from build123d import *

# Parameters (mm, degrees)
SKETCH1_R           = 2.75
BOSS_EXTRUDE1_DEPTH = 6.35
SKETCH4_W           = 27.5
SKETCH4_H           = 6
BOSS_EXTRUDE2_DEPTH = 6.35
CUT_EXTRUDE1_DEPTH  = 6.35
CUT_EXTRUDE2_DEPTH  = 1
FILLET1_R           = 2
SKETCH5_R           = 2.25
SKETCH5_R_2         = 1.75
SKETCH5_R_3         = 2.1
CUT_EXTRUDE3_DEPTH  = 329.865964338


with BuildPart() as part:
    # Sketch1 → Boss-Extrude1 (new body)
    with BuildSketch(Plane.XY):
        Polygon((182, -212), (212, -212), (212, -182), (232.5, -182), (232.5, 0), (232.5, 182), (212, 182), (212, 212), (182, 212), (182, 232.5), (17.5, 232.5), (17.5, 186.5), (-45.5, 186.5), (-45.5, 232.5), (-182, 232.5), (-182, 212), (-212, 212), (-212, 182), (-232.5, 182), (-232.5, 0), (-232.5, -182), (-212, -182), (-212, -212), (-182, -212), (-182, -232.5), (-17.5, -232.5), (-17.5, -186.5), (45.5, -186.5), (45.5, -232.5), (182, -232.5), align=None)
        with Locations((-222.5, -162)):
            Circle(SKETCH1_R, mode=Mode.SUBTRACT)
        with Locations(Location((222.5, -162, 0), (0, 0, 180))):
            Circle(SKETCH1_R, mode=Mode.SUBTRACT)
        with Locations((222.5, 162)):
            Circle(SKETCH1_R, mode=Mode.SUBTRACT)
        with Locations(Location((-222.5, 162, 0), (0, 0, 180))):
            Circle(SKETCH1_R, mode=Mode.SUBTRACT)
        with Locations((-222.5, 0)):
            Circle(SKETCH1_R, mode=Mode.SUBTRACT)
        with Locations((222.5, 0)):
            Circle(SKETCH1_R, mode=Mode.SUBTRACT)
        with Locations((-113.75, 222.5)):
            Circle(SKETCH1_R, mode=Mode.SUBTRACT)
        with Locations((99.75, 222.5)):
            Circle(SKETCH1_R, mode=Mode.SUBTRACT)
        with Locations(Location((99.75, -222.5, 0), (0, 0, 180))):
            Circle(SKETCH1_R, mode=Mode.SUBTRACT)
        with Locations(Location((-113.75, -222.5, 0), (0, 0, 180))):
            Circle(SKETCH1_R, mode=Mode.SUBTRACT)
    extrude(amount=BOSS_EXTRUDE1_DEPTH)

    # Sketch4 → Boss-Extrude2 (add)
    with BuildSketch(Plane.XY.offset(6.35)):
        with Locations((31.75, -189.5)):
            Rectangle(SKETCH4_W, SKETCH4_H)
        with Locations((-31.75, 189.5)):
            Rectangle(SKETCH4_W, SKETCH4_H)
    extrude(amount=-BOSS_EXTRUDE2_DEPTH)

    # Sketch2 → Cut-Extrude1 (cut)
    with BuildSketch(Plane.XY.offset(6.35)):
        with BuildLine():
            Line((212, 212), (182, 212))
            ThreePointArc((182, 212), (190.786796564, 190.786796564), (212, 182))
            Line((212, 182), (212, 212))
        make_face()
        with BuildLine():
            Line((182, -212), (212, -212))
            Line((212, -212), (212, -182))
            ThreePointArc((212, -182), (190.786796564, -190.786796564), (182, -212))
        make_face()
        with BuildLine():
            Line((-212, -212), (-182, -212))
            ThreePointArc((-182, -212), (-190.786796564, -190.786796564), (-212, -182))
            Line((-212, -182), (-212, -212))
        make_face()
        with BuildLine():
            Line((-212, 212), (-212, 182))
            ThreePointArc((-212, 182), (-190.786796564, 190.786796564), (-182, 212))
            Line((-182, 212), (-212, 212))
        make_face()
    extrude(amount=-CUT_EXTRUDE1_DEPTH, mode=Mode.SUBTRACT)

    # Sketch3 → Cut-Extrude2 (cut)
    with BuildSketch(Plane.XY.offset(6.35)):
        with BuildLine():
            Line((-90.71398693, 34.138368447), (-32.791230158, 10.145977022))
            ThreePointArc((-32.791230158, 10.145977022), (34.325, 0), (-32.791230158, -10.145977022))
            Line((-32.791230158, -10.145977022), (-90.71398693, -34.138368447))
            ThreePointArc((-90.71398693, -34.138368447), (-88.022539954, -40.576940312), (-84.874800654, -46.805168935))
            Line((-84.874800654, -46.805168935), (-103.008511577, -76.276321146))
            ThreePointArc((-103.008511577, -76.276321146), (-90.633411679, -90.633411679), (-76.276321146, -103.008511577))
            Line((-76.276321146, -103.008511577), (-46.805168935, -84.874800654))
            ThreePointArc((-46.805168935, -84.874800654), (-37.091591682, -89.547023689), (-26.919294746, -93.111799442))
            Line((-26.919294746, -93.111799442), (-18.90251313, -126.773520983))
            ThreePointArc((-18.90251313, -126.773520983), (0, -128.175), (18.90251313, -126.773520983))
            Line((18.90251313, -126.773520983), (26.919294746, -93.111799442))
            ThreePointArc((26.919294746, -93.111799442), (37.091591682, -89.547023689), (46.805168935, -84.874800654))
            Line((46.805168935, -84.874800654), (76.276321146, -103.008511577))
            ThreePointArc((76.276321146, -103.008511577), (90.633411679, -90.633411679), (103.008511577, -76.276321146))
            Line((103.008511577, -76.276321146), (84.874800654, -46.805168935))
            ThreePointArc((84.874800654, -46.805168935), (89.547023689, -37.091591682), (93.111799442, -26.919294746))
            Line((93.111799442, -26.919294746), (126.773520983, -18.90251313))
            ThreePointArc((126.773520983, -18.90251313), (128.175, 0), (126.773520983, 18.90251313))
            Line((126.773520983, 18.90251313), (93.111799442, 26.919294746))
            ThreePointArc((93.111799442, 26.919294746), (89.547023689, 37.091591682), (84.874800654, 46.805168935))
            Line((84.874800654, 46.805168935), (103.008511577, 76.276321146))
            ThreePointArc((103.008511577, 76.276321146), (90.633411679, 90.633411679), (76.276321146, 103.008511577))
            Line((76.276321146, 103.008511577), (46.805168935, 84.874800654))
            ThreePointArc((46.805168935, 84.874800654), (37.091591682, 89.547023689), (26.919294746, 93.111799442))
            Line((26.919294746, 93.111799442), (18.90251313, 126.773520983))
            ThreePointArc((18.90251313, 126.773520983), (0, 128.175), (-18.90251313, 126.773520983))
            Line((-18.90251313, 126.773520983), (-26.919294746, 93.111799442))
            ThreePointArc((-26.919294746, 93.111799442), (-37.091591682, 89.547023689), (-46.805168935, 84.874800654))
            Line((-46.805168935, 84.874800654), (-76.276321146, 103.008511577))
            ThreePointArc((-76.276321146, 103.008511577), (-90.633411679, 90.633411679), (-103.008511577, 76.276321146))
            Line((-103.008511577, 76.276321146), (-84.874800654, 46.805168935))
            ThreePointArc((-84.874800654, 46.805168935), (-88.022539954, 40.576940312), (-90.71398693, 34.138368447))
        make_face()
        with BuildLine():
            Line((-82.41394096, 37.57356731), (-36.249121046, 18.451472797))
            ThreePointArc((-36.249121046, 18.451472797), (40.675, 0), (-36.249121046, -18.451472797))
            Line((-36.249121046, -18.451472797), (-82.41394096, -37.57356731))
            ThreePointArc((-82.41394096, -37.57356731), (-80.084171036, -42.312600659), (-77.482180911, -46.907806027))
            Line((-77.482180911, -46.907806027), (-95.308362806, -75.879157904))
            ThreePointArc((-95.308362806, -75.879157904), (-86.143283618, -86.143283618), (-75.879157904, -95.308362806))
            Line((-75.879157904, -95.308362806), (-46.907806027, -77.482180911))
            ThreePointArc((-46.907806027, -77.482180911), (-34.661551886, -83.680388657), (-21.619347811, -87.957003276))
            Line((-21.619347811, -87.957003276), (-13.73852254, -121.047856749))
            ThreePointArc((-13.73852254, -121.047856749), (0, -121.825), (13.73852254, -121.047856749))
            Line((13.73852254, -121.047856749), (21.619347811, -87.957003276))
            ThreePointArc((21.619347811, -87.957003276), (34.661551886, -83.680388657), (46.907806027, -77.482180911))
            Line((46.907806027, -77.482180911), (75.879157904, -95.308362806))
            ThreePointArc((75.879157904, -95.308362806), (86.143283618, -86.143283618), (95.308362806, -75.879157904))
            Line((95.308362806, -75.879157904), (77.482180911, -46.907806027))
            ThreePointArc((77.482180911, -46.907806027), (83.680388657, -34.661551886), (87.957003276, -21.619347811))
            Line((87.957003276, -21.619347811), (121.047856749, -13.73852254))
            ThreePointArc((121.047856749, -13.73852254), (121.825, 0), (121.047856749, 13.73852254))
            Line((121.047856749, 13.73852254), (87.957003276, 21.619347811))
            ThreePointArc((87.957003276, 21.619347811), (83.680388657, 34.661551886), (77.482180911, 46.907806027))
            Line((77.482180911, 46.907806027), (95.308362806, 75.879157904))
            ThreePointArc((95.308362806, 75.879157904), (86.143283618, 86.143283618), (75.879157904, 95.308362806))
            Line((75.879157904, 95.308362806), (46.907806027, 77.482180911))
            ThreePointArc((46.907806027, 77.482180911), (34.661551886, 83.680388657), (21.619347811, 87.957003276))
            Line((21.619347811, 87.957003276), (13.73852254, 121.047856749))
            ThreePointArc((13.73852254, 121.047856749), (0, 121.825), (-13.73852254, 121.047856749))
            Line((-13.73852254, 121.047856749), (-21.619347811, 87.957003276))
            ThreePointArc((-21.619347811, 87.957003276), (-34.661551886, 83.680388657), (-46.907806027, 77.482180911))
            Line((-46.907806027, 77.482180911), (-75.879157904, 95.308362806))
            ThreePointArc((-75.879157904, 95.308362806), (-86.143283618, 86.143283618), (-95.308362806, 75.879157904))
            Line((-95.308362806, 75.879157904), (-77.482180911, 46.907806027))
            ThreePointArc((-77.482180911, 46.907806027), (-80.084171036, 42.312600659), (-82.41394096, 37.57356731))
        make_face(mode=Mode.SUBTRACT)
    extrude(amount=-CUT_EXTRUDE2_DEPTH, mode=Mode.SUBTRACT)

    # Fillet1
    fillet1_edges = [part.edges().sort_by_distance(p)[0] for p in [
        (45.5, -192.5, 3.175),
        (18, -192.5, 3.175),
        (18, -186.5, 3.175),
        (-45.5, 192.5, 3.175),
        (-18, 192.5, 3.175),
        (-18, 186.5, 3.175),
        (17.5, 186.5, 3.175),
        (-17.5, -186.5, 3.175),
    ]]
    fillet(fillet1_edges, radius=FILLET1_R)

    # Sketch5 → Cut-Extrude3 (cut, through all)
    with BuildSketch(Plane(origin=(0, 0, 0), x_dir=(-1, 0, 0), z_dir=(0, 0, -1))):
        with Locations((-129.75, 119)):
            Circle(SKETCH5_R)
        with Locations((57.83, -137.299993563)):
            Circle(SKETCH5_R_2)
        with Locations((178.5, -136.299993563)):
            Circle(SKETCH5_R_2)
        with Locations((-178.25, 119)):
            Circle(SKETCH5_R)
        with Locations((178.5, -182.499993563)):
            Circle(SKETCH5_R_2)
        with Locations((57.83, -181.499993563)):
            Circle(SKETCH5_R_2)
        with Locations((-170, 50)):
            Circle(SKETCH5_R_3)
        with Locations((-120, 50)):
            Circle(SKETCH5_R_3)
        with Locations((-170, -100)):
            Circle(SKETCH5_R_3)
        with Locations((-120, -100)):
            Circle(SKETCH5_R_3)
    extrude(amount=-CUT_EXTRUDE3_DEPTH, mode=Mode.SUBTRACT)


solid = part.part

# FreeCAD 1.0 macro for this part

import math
import FreeCAD as App
import Part
import Sketcher
Q = App.Units.Quantity


def edges_at(feature, points):
    """Names of the edges that pass closest to the given points."""
    edges = feature.Shape.Edges
    near = lambda p: min(range(len(edges)), key=lambda i: edges[i].distToShape(Part.Vertex(*p))[0])
    return sorted({f"Edge{near(p) + 1}" for p in points})


def add_polygon(sketch, points):
    """Adds a closed chain of lines whose ends are joined by coincident constraints."""
    first, n = sketch.GeometryCount, len(points)
    for a, b in zip(points, points[1:] + points[:1]):
        sketch.addGeometry(Part.LineSegment(App.Vector(*a, 0), App.Vector(*b, 0)), False)
    for i in range(n):
        sketch.addConstraint(Sketcher.Constraint("Coincident", first + i, 2, first + (i + 1) % n, 1))

doc = App.newDocument("Part")
body = doc.addObject("PartDesign::Body", "Body")

# Sketch on XY plane
sketch1 = body.newObject("Sketcher::SketchObject", "Sketch")
sketch1.AttachmentSupport = (doc.getObject("XY_Plane"), [""])
sketch1.MapMode = "FlatFace"
add_polygon(sketch1, [(182, -212), (212, -212), (212, -182), (232.5, -182), (232.5, 182), (212, 182), (212, 212), (182, 212), (182, 232.5), (17.5, 232.5), (17.5, 186.5), (-45.5, 186.5), (-45.5, 232.5), (-182, 232.5), (-182, 212), (-212, 212), (-212, 182), (-232.5, 182), (-232.5, -182), (-212, -182), (-212, -212), (-182, -212), (-182, -232.5), (-17.5, -232.5), (-17.5, -186.5), (45.5, -186.5), (45.5, -232.5), (182, -232.5)])  # lines 0-27
sketch1.addGeometry(Part.Circle(App.Vector(-113.8, -222.5, 0), App.Vector(0, 0, 1), 2.8), False)  # 28
sketch1.addGeometry(Part.Circle(App.Vector(-222.5, -162, 0), App.Vector(0, 0, 1), 2.8), False)  # 29
sketch1.addGeometry(Part.Circle(App.Vector(99.8, -222.5, 0), App.Vector(0, 0, 1), 2.8), False)  # 30
sketch1.addGeometry(Part.Circle(App.Vector(222.5, -162, 0), App.Vector(0, 0, 1), 2.8), False)  # 31
sketch1.addGeometry(Part.Circle(App.Vector(-222.5, 0, 0), App.Vector(0, 0, 1), 2.8), False)  # 32
sketch1.addGeometry(Part.Circle(App.Vector(-222.5, 162, 0), App.Vector(0, 0, 1), 2.8), False)  # 33
sketch1.addGeometry(Part.Circle(App.Vector(-113.8, 222.5, 0), App.Vector(0, 0, 1), 2.8), False)  # 34
sketch1.addGeometry(Part.Circle(App.Vector(222.5, 0, 0), App.Vector(0, 0, 1), 2.8), False)  # 35
sketch1.addGeometry(Part.Circle(App.Vector(99.8, 222.5, 0), App.Vector(0, 0, 1), 2.8), False)  # 36
sketch1.addGeometry(Part.Circle(App.Vector(222.5, 162, 0), App.Vector(0, 0, 1), 2.8), False)  # 37
sketch1.addConstraint([
    Sketcher.Constraint("Horizontal", 0),
    Sketcher.Constraint("Vertical", 1),
    Sketcher.Constraint("Horizontal", 2),
    Sketcher.Constraint("Vertical", 3),
    Sketcher.Constraint("Horizontal", 4),
    Sketcher.Constraint("Vertical", 5),
    Sketcher.Constraint("Horizontal", 6),
    Sketcher.Constraint("Vertical", 7),
    Sketcher.Constraint("Horizontal", 8),
    Sketcher.Constraint("Vertical", 9),
    Sketcher.Constraint("Horizontal", 10),
    Sketcher.Constraint("Vertical", 11),
    Sketcher.Constraint("Horizontal", 12),
    Sketcher.Constraint("Vertical", 13),
    Sketcher.Constraint("Horizontal", 14),
    Sketcher.Constraint("Vertical", 15),
    Sketcher.Constraint("Horizontal", 16),
    Sketcher.Constraint("Vertical", 17),
    Sketcher.Constraint("Horizontal", 18),
    Sketcher.Constraint("Vertical", 19),
    Sketcher.Constraint("Horizontal", 20),
    Sketcher.Constraint("Vertical", 21),
    Sketcher.Constraint("Horizontal", 22),
    Sketcher.Constraint("Vertical", 23),
    Sketcher.Constraint("Horizontal", 24),
    Sketcher.Constraint("Vertical", 25),
    Sketcher.Constraint("Horizontal", 26),
    Sketcher.Constraint("Vertical", 27),
    Sketcher.Constraint("Equal", 28, 29),
    Sketcher.Constraint("Equal", 29, 30),
    Sketcher.Constraint("Equal", 30, 31),
    Sketcher.Constraint("Equal", 31, 32),
    Sketcher.Constraint("Equal", 32, 33),
    Sketcher.Constraint("Equal", 33, 34),
    Sketcher.Constraint("Equal", 34, 35),
    Sketcher.Constraint("Equal", 35, 36),
    Sketcher.Constraint("Equal", 36, 37),
    Sketcher.Constraint("Symmetric", 31, 3, 33, 3, -1, 1),
    Sketcher.Constraint("Symmetric", 32, 3, 35, 3, -1, 1),
    Sketcher.Constraint("Symmetric", 29, 3, 37, 3, -1, 1),
    Sketcher.Constraint("Symmetric", 0, 2, 14, 2, -1, 1),
    Sketcher.Constraint("Symmetric", 2, 2, 16, 2, -1, 1),
    Sketcher.Constraint("Symmetric", 4, 2, 18, 2, -1, 1),
    Sketcher.Constraint("Symmetric", 6, 2, 20, 2, -1, 1),
    Sketcher.Constraint("Symmetric", 8, 2, 22, 2, -1, 1),
    Sketcher.Constraint("Symmetric", 10, 2, 24, 2, -1, 1),
    Sketcher.Constraint("Symmetric", 12, 2, 26, 2, -1, 1),
    Sketcher.Constraint("Symmetric", 29, 3, 31, 3, -2),
    Sketcher.Constraint("Symmetric", 7, 2, 12, 2, -2),
    Sketcher.Constraint("Symmetric", 5, 2, 14, 2, -2),
    Sketcher.Constraint("Symmetric", 28, 3, 34, 3, -1),
    Sketcher.Constraint("Symmetric", 30, 3, 36, 3, -1),
    Sketcher.Constraint("PointOnObject", 32, 3, -1),
    Sketcher.Constraint("Horizontal", 28, 3, 30, 3),
    Sketcher.Constraint("Horizontal", 4, 2, 15, 2),
    Sketcher.Constraint("Vertical", 29, 3, 32, 3),
    Sketcher.Constraint("Equal", 20, 1),
    Sketcher.Constraint("Equal", 18, 7),
    Sketcher.Constraint("Diameter", 28, Q("5.5 mm")),
    Sketcher.Constraint("DistanceX", 0, 1, 0, 2, Q("30 mm")),
    Sketcher.Constraint("DistanceX", 10, 2, 10, 1, Q("63 mm")),
    Sketcher.Constraint("DistanceY", 3, 1, 3, 2, Q("364 mm")),
    Sketcher.Constraint("DistanceY", 9, 2, 9, 1, Q("46 mm")),
    Sketcher.Constraint("DistanceX", 2, 1, 2, 2, Q("20.5 mm")),
    Sketcher.Constraint("DistanceX", 8, 2, 8, 1, Q("164.5 mm")),
    Sketcher.Constraint("DistanceX", 12, 2, 12, 1, Q("136.5 mm")),
    Sketcher.Constraint("DistanceY", 29, 3, -1, 1, Q("162 mm")),
    Sketcher.Constraint("DistanceX", 29, 3, 31, 3, Q("445 mm")),
    Sketcher.Constraint("DistanceY", 28, 3, 34, 3, Q("445 mm")),
    Sketcher.Constraint("DistanceX", 28, 3, 30, 3, Q("213.5 mm")),
    Sketcher.Constraint("DistanceX", 28, 3, -1, 1, Q("113.75 mm")),
])
pad1 = body.newObject("PartDesign::Pad", "Pad")
pad1.Profile = sketch1
pad1.Length = 6.35

# Sketch on XY plane
sketch2 = body.newObject("Sketcher::SketchObject", "Sketch001")
sketch2.AttachmentSupport = (doc.getObject("XY_Plane"), [""])
sketch2.MapMode = "FlatFace"
sketch2.AttachmentOffset = App.Placement(App.Vector(0, 0, 6.35), App.Rotation())
add_polygon(sketch2, [(18, -186), (18, -192), (46, -192), (46, -186)])  # lines 0-3
add_polygon(sketch2, [(-46, 192), (-46, 186), (-18, 186), (-18, 192)])  # lines 4-7
sketch2.addConstraint([
    Sketcher.Constraint("Vertical", 0),
    Sketcher.Constraint("Horizontal", 1),
    Sketcher.Constraint("Vertical", 2),
    Sketcher.Constraint("Horizontal", 3),
    Sketcher.Constraint("Vertical", 4),
    Sketcher.Constraint("Horizontal", 5),
    Sketcher.Constraint("Vertical", 6),
    Sketcher.Constraint("Horizontal", 7),
    Sketcher.Constraint("Symmetric", 2, 2, 4, 2, -1, 1),
    Sketcher.Constraint("Symmetric", 0, 2, 6, 2, -1, 1),
    Sketcher.Constraint("DistanceY", 0, 2, 0, 1, Q("6 mm")),
    Sketcher.Constraint("DistanceX", 1, 1, 1, 2, Q("27.5 mm")),
    Sketcher.Constraint("DistanceX", -1, 1, 0, 2, Q("18 mm")),
    Sketcher.Constraint("DistanceY", 3, 2, 4, 2, Q("373 mm")),
])
pad2 = body.newObject("PartDesign::Pad", "Pad001")
pad2.Profile = sketch2
pad2.Length = 6.35
pad2.Reversed = True

# Sketch on XY plane
sketch3 = body.newObject("Sketcher::SketchObject", "Sketch002")
sketch3.AttachmentSupport = (doc.getObject("XY_Plane"), [""])
sketch3.MapMode = "FlatFace"
sketch3.AttachmentOffset = App.Placement(App.Vector(0, 0, 6.35), App.Rotation())
sketch3.addGeometry([
    Part.LineSegment(App.Vector(212, 212, 0), App.Vector(182, 212, 0)),  # 0
    Part.ArcOfCircle(Part.Circle(App.Vector(212, 212, 0), App.Vector(0, 0, 1), 30), math.radians(180), math.radians(270)),  # 1
    Part.LineSegment(App.Vector(212, 182, 0), App.Vector(212, 212, 0)),  # 2
    Part.LineSegment(App.Vector(182, -212, 0), App.Vector(212, -212, 0)),  # 3
    Part.LineSegment(App.Vector(212, -212, 0), App.Vector(212, -182, 0)),  # 4
    Part.ArcOfCircle(Part.Circle(App.Vector(212, -212, 0), App.Vector(0, 0, 1), 30), math.radians(90), math.radians(180)),  # 5
    Part.LineSegment(App.Vector(-212, -212, 0), App.Vector(-182, -212, 0)),  # 6
    Part.ArcOfCircle(Part.Circle(App.Vector(-212, -212, 0), App.Vector(0, 0, 1), 30), math.radians(0), math.radians(90)),  # 7
    Part.LineSegment(App.Vector(-212, -182, 0), App.Vector(-212, -212, 0)),  # 8
    Part.LineSegment(App.Vector(-212, 212, 0), App.Vector(-212, 182, 0)),  # 9
    Part.ArcOfCircle(Part.Circle(App.Vector(-212, 212, 0), App.Vector(0, 0, 1), 30), math.radians(-90), math.radians(0)),  # 10
    Part.LineSegment(App.Vector(-182, 212, 0), App.Vector(-212, 212, 0)),  # 11
], False)
sketch3.addConstraint([
    Sketcher.Constraint("Coincident", 0, 2, 1, 1),
    Sketcher.Constraint("Coincident", 1, 2, 2, 1),
    Sketcher.Constraint("Coincident", 2, 2, 0, 1),
    Sketcher.Constraint("Coincident", 3, 2, 4, 1),
    Sketcher.Constraint("Coincident", 4, 2, 5, 1),
    Sketcher.Constraint("Coincident", 5, 2, 3, 1),
    Sketcher.Constraint("Coincident", 6, 2, 7, 1),
    Sketcher.Constraint("Coincident", 7, 2, 8, 1),
    Sketcher.Constraint("Coincident", 8, 2, 6, 1),
    Sketcher.Constraint("Coincident", 9, 2, 10, 1),
    Sketcher.Constraint("Coincident", 10, 2, 11, 1),
    Sketcher.Constraint("Coincident", 11, 2, 9, 1),
    Sketcher.Constraint("Horizontal", 0),
    Sketcher.Constraint("Vertical", 2),
    Sketcher.Constraint("Horizontal", 3),
    Sketcher.Constraint("Vertical", 4),
    Sketcher.Constraint("Horizontal", 6),
    Sketcher.Constraint("Vertical", 8),
    Sketcher.Constraint("Vertical", 9),
    Sketcher.Constraint("Horizontal", 11),
    Sketcher.Constraint("Coincident", 2, 2, 1, 3),
    Sketcher.Constraint("Coincident", 3, 2, 5, 3),
    Sketcher.Constraint("Coincident", 8, 2, 7, 3),
    Sketcher.Constraint("Coincident", 11, 2, 10, 3),
    Sketcher.Constraint("Equal", 1, 5),
    Sketcher.Constraint("Equal", 5, 7),
    Sketcher.Constraint("Equal", 7, 10),
    Sketcher.Constraint("Symmetric", 1, 3, 7, 3, -1, 1),
    Sketcher.Constraint("Symmetric", 5, 3, 10, 3, -1, 1),
    Sketcher.Constraint("Symmetric", 5, 3, 7, 3, -2),
    Sketcher.Constraint("Radius", 1, Q("30 mm")),
    Sketcher.Constraint("DistanceX", -1, 1, 1, 3, Q("212 mm")),
    Sketcher.Constraint("DistanceY", -1, 1, 1, 3, Q("212 mm")),
])
pocket1 = body.newObject("PartDesign::Pocket", "Pocket")
pocket1.Profile = sketch3
pocket1.Length = 6.35

# Sketch on XY plane
sketch4 = body.newObject("Sketcher::SketchObject", "Sketch003")
sketch4.AttachmentSupport = (doc.getObject("XY_Plane"), [""])
sketch4.MapMode = "FlatFace"
sketch4.AttachmentOffset = App.Placement(App.Vector(0, 0, 6.35), App.Rotation())
sketch4.addGeometry([
    Part.LineSegment(App.Vector(-91, 34, 0), App.Vector(-33, 10, 0)),  # 0
    Part.ArcOfCircle(Part.Circle(App.Vector(0, 0, 0), App.Vector(0, 0, 1), 34), math.radians(-163), math.radians(163)),  # 1
    Part.LineSegment(App.Vector(-33, -10, 0), App.Vector(-91, -34, 0)),  # 2
    Part.ArcOfCircle(Part.Circle(App.Vector(0, 0, 0), App.Vector(0, 0, 1), 97), math.radians(-159.38), math.radians(-151.12)),  # 3
    Part.LineSegment(App.Vector(-85, -47, 0), App.Vector(-103, -76, 0)),  # 4
    Part.ArcOfCircle(Part.Circle(App.Vector(0, 0, 0), App.Vector(0, 0, 1), 128), math.radians(-143.48), math.radians(-126.52)),  # 5
    Part.LineSegment(App.Vector(-76, -103, 0), App.Vector(-47, -85, 0)),  # 6
    Part.ArcOfCircle(Part.Circle(App.Vector(0, 0, 0), App.Vector(0, 0, 1), 97), math.radians(-118.88), math.radians(-106.12)),  # 7
    Part.LineSegment(App.Vector(-27, -93, 0), App.Vector(-19, -127, 0)),  # 8
    Part.ArcOfCircle(Part.Circle(App.Vector(0, 0, 0), App.Vector(0, 0, 1), 128), math.radians(-98.48), math.radians(-81.52)),  # 9
    Part.LineSegment(App.Vector(19, -127, 0), App.Vector(27, -93, 0)),  # 10
    Part.ArcOfCircle(Part.Circle(App.Vector(0, 0, 0), App.Vector(0, 0, 1), 97), math.radians(-73.88), math.radians(-61.12)),  # 11
    Part.LineSegment(App.Vector(47, -85, 0), App.Vector(76, -103, 0)),  # 12
    Part.ArcOfCircle(Part.Circle(App.Vector(0, 0, 0), App.Vector(0, 0, 1), 128), math.radians(-53.48), math.radians(-36.52)),  # 13
    Part.LineSegment(App.Vector(103, -76, 0), App.Vector(85, -47, 0)),  # 14
    Part.ArcOfCircle(Part.Circle(App.Vector(0, 0, 0), App.Vector(0, 0, 1), 97), math.radians(-28.88), math.radians(-16.12)),  # 15
    Part.LineSegment(App.Vector(93, -27, 0), App.Vector(127, -19, 0)),  # 16
    Part.ArcOfCircle(Part.Circle(App.Vector(0, 0, 0), App.Vector(0, 0, 1), 128), math.radians(-8.48), math.radians(8.48)),  # 17
    Part.LineSegment(App.Vector(127, 19, 0), App.Vector(93, 27, 0)),  # 18
    Part.ArcOfCircle(Part.Circle(App.Vector(0, 0, 0), App.Vector(0, 0, 1), 97), math.radians(16.12), math.radians(28.88)),  # 19
    Part.LineSegment(App.Vector(85, 47, 0), App.Vector(103, 76, 0)),  # 20
    Part.ArcOfCircle(Part.Circle(App.Vector(0, 0, 0), App.Vector(0, 0, 1), 128), math.radians(36.52), math.radians(53.48)),  # 21
    Part.LineSegment(App.Vector(76, 103, 0), App.Vector(47, 85, 0)),  # 22
    Part.ArcOfCircle(Part.Circle(App.Vector(0, 0, 0), App.Vector(0, 0, 1), 97), math.radians(61.12), math.radians(73.88)),  # 23
    Part.LineSegment(App.Vector(27, 93, 0), App.Vector(19, 127, 0)),  # 24
    Part.ArcOfCircle(Part.Circle(App.Vector(0, 0, 0), App.Vector(0, 0, 1), 128), math.radians(81.52), math.radians(98.48)),  # 25
    Part.LineSegment(App.Vector(-19, 127, 0), App.Vector(-27, 93, 0)),  # 26
    Part.ArcOfCircle(Part.Circle(App.Vector(0, 0, 0), App.Vector(0, 0, 1), 97), math.radians(106.12), math.radians(118.88)),  # 27
    Part.LineSegment(App.Vector(-47, 85, 0), App.Vector(-76, 103, 0)),  # 28
    Part.ArcOfCircle(Part.Circle(App.Vector(0, 0, 0), App.Vector(0, 0, 1), 128), math.radians(126.52), math.radians(143.48)),  # 29
    Part.LineSegment(App.Vector(-103, 76, 0), App.Vector(-85, 47, 0)),  # 30
    Part.ArcOfCircle(Part.Circle(App.Vector(0, 0, 0), App.Vector(0, 0, 1), 97), math.radians(151.12), math.radians(159.38)),  # 31
    Part.LineSegment(App.Vector(-36, 18, 0), App.Vector(-82, 38, 0)),  # 32
    Part.ArcOfCircle(Part.Circle(App.Vector(0, 0, 0), App.Vector(0, 0, 1), 91), math.radians(148.81), math.radians(155.49)),  # 33
    Part.LineSegment(App.Vector(-77, 47, 0), App.Vector(-95, 76, 0)),  # 34
    Part.ArcOfCircle(Part.Circle(App.Vector(0, 0, 0), App.Vector(0, 0, 1), 122), math.radians(128.52), math.radians(141.48)),  # 35
    Part.LineSegment(App.Vector(-76, 95, 0), App.Vector(-47, 77, 0)),  # 36
    Part.ArcOfCircle(Part.Circle(App.Vector(0, 0, 0), App.Vector(0, 0, 1), 91), math.radians(103.81), math.radians(121.19)),  # 37
    Part.LineSegment(App.Vector(-22, 88, 0), App.Vector(-14, 121, 0)),  # 38
    Part.ArcOfCircle(Part.Circle(App.Vector(0, 0, 0), App.Vector(0, 0, 1), 122), math.radians(83.52), math.radians(96.48)),  # 39
    Part.LineSegment(App.Vector(14, 121, 0), App.Vector(22, 88, 0)),  # 40
    Part.ArcOfCircle(Part.Circle(App.Vector(0, 0, 0), App.Vector(0, 0, 1), 91), math.radians(58.81), math.radians(76.19)),  # 41
    Part.LineSegment(App.Vector(47, 77, 0), App.Vector(76, 95, 0)),  # 42
    Part.ArcOfCircle(Part.Circle(App.Vector(0, 0, 0), App.Vector(0, 0, 1), 122), math.radians(38.52), math.radians(51.48)),  # 43
    Part.LineSegment(App.Vector(95, 76, 0), App.Vector(77, 47, 0)),  # 44
    Part.ArcOfCircle(Part.Circle(App.Vector(0, 0, 0), App.Vector(0, 0, 1), 91), math.radians(13.81), math.radians(31.19)),  # 45
    Part.LineSegment(App.Vector(88, 22, 0), App.Vector(121, 14, 0)),  # 46
    Part.ArcOfCircle(Part.Circle(App.Vector(0, 0, 0), App.Vector(0, 0, 1), 122), math.radians(-6.48), math.radians(6.48)),  # 47
    Part.LineSegment(App.Vector(121, -14, 0), App.Vector(88, -22, 0)),  # 48
    Part.ArcOfCircle(Part.Circle(App.Vector(0, 0, 0), App.Vector(0, 0, 1), 91), math.radians(-31.19), math.radians(-13.81)),  # 49
    Part.LineSegment(App.Vector(77, -47, 0), App.Vector(95, -76, 0)),  # 50
    Part.ArcOfCircle(Part.Circle(App.Vector(0, 0, 0), App.Vector(0, 0, 1), 122), math.radians(-51.48), math.radians(-38.52)),  # 51
    Part.LineSegment(App.Vector(76, -95, 0), App.Vector(47, -77, 0)),  # 52
    Part.ArcOfCircle(Part.Circle(App.Vector(0, 0, 0), App.Vector(0, 0, 1), 91), math.radians(-76.19), math.radians(-58.81)),  # 53
    Part.LineSegment(App.Vector(22, -88, 0), App.Vector(14, -121, 0)),  # 54
    Part.ArcOfCircle(Part.Circle(App.Vector(0, 0, 0), App.Vector(0, 0, 1), 122), math.radians(-96.48), math.radians(-83.52)),  # 55
    Part.LineSegment(App.Vector(-14, -121, 0), App.Vector(-22, -88, 0)),  # 56
    Part.ArcOfCircle(Part.Circle(App.Vector(0, 0, 0), App.Vector(0, 0, 1), 91), math.radians(-121.19), math.radians(-103.81)),  # 57
    Part.LineSegment(App.Vector(-47, -77, 0), App.Vector(-76, -95, 0)),  # 58
    Part.ArcOfCircle(Part.Circle(App.Vector(0, 0, 0), App.Vector(0, 0, 1), 122), math.radians(-141.48), math.radians(-128.52)),  # 59
    Part.LineSegment(App.Vector(-95, -76, 0), App.Vector(-77, -47, 0)),  # 60
    Part.ArcOfCircle(Part.Circle(App.Vector(0, 0, 0), App.Vector(0, 0, 1), 91), math.radians(-155.49), math.radians(-148.81)),  # 61
    Part.LineSegment(App.Vector(-82, -38, 0), App.Vector(-36, -18, 0)),  # 62
    Part.ArcOfCircle(Part.Circle(App.Vector(0, 0, 0), App.Vector(0, 0, 1), 41), math.radians(-153), math.radians(153)),  # 63
], False)
sketch4.addConstraint([
    Sketcher.Constraint("Coincident", 0, 2, 1, 2),
    Sketcher.Constraint("Coincident", 1, 1, 2, 1),
    Sketcher.Constraint("Coincident", 2, 2, 3, 1),
    Sketcher.Constraint("Coincident", 3, 2, 4, 1),
    Sketcher.Constraint("Coincident", 4, 2, 5, 1),
    Sketcher.Constraint("Coincident", 5, 2, 6, 1),
    Sketcher.Constraint("Coincident", 6, 2, 7, 1),
    Sketcher.Constraint("Coincident", 7, 2, 8, 1),
    Sketcher.Constraint("Coincident", 8, 2, 9, 1),
    Sketcher.Constraint("Coincident", 9, 2, 10, 1),
    Sketcher.Constraint("Coincident", 10, 2, 11, 1),
    Sketcher.Constraint("Coincident", 11, 2, 12, 1),
    Sketcher.Constraint("Coincident", 12, 2, 13, 1),
    Sketcher.Constraint("Coincident", 13, 2, 14, 1),
    Sketcher.Constraint("Coincident", 14, 2, 15, 1),
    Sketcher.Constraint("Coincident", 15, 2, 16, 1),
    Sketcher.Constraint("Coincident", 16, 2, 17, 1),
    Sketcher.Constraint("Coincident", 17, 2, 18, 1),
    Sketcher.Constraint("Coincident", 18, 2, 19, 1),
    Sketcher.Constraint("Coincident", 19, 2, 20, 1),
    Sketcher.Constraint("Coincident", 20, 2, 21, 1),
    Sketcher.Constraint("Coincident", 21, 2, 22, 1),
    Sketcher.Constraint("Coincident", 22, 2, 23, 1),
    Sketcher.Constraint("Coincident", 23, 2, 24, 1),
    Sketcher.Constraint("Coincident", 24, 2, 25, 1),
    Sketcher.Constraint("Coincident", 25, 2, 26, 1),
    Sketcher.Constraint("Coincident", 26, 2, 27, 1),
    Sketcher.Constraint("Coincident", 27, 2, 28, 1),
    Sketcher.Constraint("Coincident", 28, 2, 29, 1),
    Sketcher.Constraint("Coincident", 29, 2, 30, 1),
    Sketcher.Constraint("Coincident", 30, 2, 31, 1),
    Sketcher.Constraint("Coincident", 31, 2, 0, 1),
    Sketcher.Constraint("Coincident", 32, 2, 33, 2),
    Sketcher.Constraint("Coincident", 33, 1, 34, 1),
    Sketcher.Constraint("Coincident", 34, 2, 35, 2),
    Sketcher.Constraint("Coincident", 35, 1, 36, 1),
    Sketcher.Constraint("Coincident", 36, 2, 37, 2),
    Sketcher.Constraint("Coincident", 37, 1, 38, 1),
    Sketcher.Constraint("Coincident", 38, 2, 39, 2),
    Sketcher.Constraint("Coincident", 39, 1, 40, 1),
    Sketcher.Constraint("Coincident", 40, 2, 41, 2),
    Sketcher.Constraint("Coincident", 41, 1, 42, 1),
    Sketcher.Constraint("Coincident", 42, 2, 43, 2),
    Sketcher.Constraint("Coincident", 43, 1, 44, 1),
    Sketcher.Constraint("Coincident", 44, 2, 45, 2),
    Sketcher.Constraint("Coincident", 45, 1, 46, 1),
    Sketcher.Constraint("Coincident", 46, 2, 47, 2),
    Sketcher.Constraint("Coincident", 47, 1, 48, 1),
    Sketcher.Constraint("Coincident", 48, 2, 49, 2),
    Sketcher.Constraint("Coincident", 49, 1, 50, 1),
    Sketcher.Constraint("Coincident", 50, 2, 51, 2),
    Sketcher.Constraint("Coincident", 51, 1, 52, 1),
    Sketcher.Constraint("Coincident", 52, 2, 53, 2),
    Sketcher.Constraint("Coincident", 53, 1, 54, 1),
    Sketcher.Constraint("Coincident", 54, 2, 55, 2),
    Sketcher.Constraint("Coincident", 55, 1, 56, 1),
    Sketcher.Constraint("Coincident", 56, 2, 57, 2),
    Sketcher.Constraint("Coincident", 57, 1, 58, 1),
    Sketcher.Constraint("Coincident", 58, 2, 59, 2),
    Sketcher.Constraint("Coincident", 59, 1, 60, 1),
    Sketcher.Constraint("Coincident", 60, 2, 61, 2),
    Sketcher.Constraint("Coincident", 61, 1, 62, 1),
    Sketcher.Constraint("Coincident", 62, 2, 63, 1),
    Sketcher.Constraint("Coincident", 63, 2, 32, 1),
    Sketcher.Constraint("Coincident", 1, 3, -1, 1),
    Sketcher.Constraint("Coincident", 3, 3, -1, 1),
    Sketcher.Constraint("Coincident", 5, 3, -1, 1),
    Sketcher.Constraint("Coincident", 7, 3, -1, 1),
    Sketcher.Constraint("Coincident", 9, 3, -1, 1),
    Sketcher.Constraint("Coincident", 11, 3, -1, 1),
    Sketcher.Constraint("Coincident", 13, 3, -1, 1),
    Sketcher.Constraint("Coincident", 15, 3, -1, 1),
    Sketcher.Constraint("Coincident", 17, 3, -1, 1),
    Sketcher.Constraint("Coincident", 19, 3, -1, 1),
    Sketcher.Constraint("Coincident", 21, 3, -1, 1),
    Sketcher.Constraint("Coincident", 23, 3, -1, 1),
    Sketcher.Constraint("Coincident", 25, 3, -1, 1),
    Sketcher.Constraint("Coincident", 27, 3, -1, 1),
    Sketcher.Constraint("Coincident", 29, 3, -1, 1),
    Sketcher.Constraint("Coincident", 31, 3, -1, 1),
    Sketcher.Constraint("Coincident", 33, 3, -1, 1),
    Sketcher.Constraint("Coincident", 35, 3, -1, 1),
    Sketcher.Constraint("Coincident", 37, 3, -1, 1),
    Sketcher.Constraint("Coincident", 39, 3, -1, 1),
    Sketcher.Constraint("Coincident", 41, 3, -1, 1),
    Sketcher.Constraint("Coincident", 43, 3, -1, 1),
    Sketcher.Constraint("Coincident", 45, 3, -1, 1),
    Sketcher.Constraint("Coincident", 47, 3, -1, 1),
    Sketcher.Constraint("Coincident", 49, 3, -1, 1),
    Sketcher.Constraint("Coincident", 51, 3, -1, 1),
    Sketcher.Constraint("Coincident", 53, 3, -1, 1),
    Sketcher.Constraint("Coincident", 55, 3, -1, 1),
    Sketcher.Constraint("Coincident", 57, 3, -1, 1),
    Sketcher.Constraint("Coincident", 59, 3, -1, 1),
    Sketcher.Constraint("Coincident", 61, 3, -1, 1),
    Sketcher.Constraint("Coincident", 63, 3, -1, 1),
    Sketcher.Constraint("Equal", 3, 7),
    Sketcher.Constraint("Equal", 5, 9),
    Sketcher.Constraint("Equal", 7, 11),
    Sketcher.Constraint("Equal", 9, 13),
    Sketcher.Constraint("Equal", 11, 15),
    Sketcher.Constraint("Equal", 13, 17),
    Sketcher.Constraint("Equal", 15, 19),
    Sketcher.Constraint("Equal", 17, 21),
    Sketcher.Constraint("Equal", 19, 23),
    Sketcher.Constraint("Equal", 21, 25),
    Sketcher.Constraint("Equal", 23, 27),
    Sketcher.Constraint("Equal", 25, 29),
    Sketcher.Constraint("Equal", 27, 31),
    Sketcher.Constraint("Equal", 33, 37),
    Sketcher.Constraint("Equal", 35, 39),
    Sketcher.Constraint("Equal", 37, 41),
    Sketcher.Constraint("Equal", 39, 43),
    Sketcher.Constraint("Equal", 41, 45),
    Sketcher.Constraint("Equal", 43, 47),
    Sketcher.Constraint("Equal", 45, 49),
    Sketcher.Constraint("Equal", 47, 51),
    Sketcher.Constraint("Equal", 49, 53),
    Sketcher.Constraint("Equal", 51, 55),
    Sketcher.Constraint("Equal", 53, 57),
    Sketcher.Constraint("Equal", 55, 59),
    Sketcher.Constraint("Equal", 57, 61),
    Sketcher.Constraint("Perpendicular", 4, 12),
    Sketcher.Constraint("Perpendicular", 6, 14),
    Sketcher.Constraint("Perpendicular", 8, 16),
    Sketcher.Constraint("Perpendicular", 10, 18),
    Sketcher.Constraint("Perpendicular", 12, 20),
    Sketcher.Constraint("Perpendicular", 14, 22),
    Sketcher.Constraint("Perpendicular", 16, 24),
    Sketcher.Constraint("Perpendicular", 18, 26),
    Sketcher.Constraint("Perpendicular", 20, 28),
    Sketcher.Constraint("Perpendicular", 22, 30),
    Sketcher.Constraint("Parallel", 0, 32),
    Sketcher.Constraint("Parallel", 30, 34),
    Sketcher.Constraint("Parallel", 28, 36),
    Sketcher.Constraint("Parallel", 26, 38),
    Sketcher.Constraint("Parallel", 24, 40),
    Sketcher.Constraint("Perpendicular", 34, 42),
    Sketcher.Constraint("Perpendicular", 36, 44),
    Sketcher.Constraint("Perpendicular", 38, 46),
    Sketcher.Constraint("Perpendicular", 40, 48),
    Sketcher.Constraint("Perpendicular", 42, 50),
    Sketcher.Constraint("Perpendicular", 44, 52),
    Sketcher.Constraint("Perpendicular", 46, 54),
    Sketcher.Constraint("Perpendicular", 48, 56),
    Sketcher.Constraint("Perpendicular", 50, 58),
    Sketcher.Constraint("Perpendicular", 52, 60),
    Sketcher.Constraint("Parallel", 2, 62),
    Sketcher.Constraint("Horizontal", 8, 2, 9, 2),
    Sketcher.Constraint("Horizontal", 7, 2, 10, 2),
    Sketcher.Constraint("Horizontal", 6, 2, 11, 2),
    Sketcher.Constraint("Horizontal", 5, 2, 12, 2),
    Sketcher.Constraint("Horizontal", 4, 2, 13, 2),
    Sketcher.Constraint("Horizontal", 24, 2, 25, 2),
    Sketcher.Constraint("Horizontal", 22, 2, 27, 2),
    Sketcher.Constraint("Horizontal", 20, 2, 29, 2),
    Sketcher.Constraint("Horizontal", 38, 2, 39, 1),
    Sketcher.Constraint("Horizontal", 36, 2, 41, 1),
    Sketcher.Constraint("Horizontal", 34, 2, 43, 1),
    Sketcher.Constraint("Horizontal", 54, 2, 55, 1),
    Sketcher.Constraint("Horizontal", 52, 2, 57, 1),
    Sketcher.Constraint("Horizontal", 50, 2, 59, 1),
    Sketcher.Constraint("Vertical", 0, 2, 1, 1),
    Sketcher.Constraint("Vertical", 16, 2, 17, 2),
    Sketcher.Constraint("Vertical", 14, 2, 19, 2),
    Sketcher.Constraint("Vertical", 12, 2, 21, 2),
    Sketcher.Constraint("Vertical", 10, 2, 23, 2),
    Sketcher.Constraint("Vertical", 2, 2, 31, 2),
    Sketcher.Constraint("Vertical", 46, 2, 47, 1),
    Sketcher.Constraint("Vertical", 44, 2, 49, 1),
    Sketcher.Constraint("Vertical", 42, 2, 51, 1),
    Sketcher.Constraint("Vertical", 40, 2, 53, 1),
    Sketcher.Constraint("Vertical", 32, 2, 61, 1),
    Sketcher.Constraint("Equal", 4, 6),
    Sketcher.Constraint("Equal", 6, 8),
    Sketcher.Constraint("Equal", 14, 16),
    Sketcher.Constraint("Equal", 34, 36),
    Sketcher.Constraint("Equal", 36, 38),
    Sketcher.Constraint("Equal", 44, 46),
    Sketcher.Constraint("Angle", 0, Q("-22.5 deg")),
    Sketcher.Constraint("Radius", 1, Q("34.325 mm")),
    Sketcher.Constraint("Radius", 3, Q("96.925 mm")),
    Sketcher.Constraint("Radius", 5, Q("128.175 mm")),
    Sketcher.Constraint("Radius", 33, Q("90.575 mm")),
    Sketcher.Constraint("Radius", 35, Q("121.825 mm")),
    Sketcher.Constraint("Radius", 63, Q("40.675 mm")),
    Sketcher.Constraint("DistanceX", 3, 2, -1, 1, Q("84.874801 mm")),
    Sketcher.Constraint("DistanceY", 7, 2, -1, 1, Q("93.111799 mm")),
    Sketcher.Constraint("Distance", 0, Q("62.69514 mm")),
    Sketcher.Constraint("Distance", 32, Q("49.968441 mm")),
    Sketcher.Constraint("Distance", 34, Q("34.016349 mm")),
    Sketcher.Constraint("DistanceX", 4, 2, -1, 1, Q("103.008512 mm")),
])
pocket2 = body.newObject("PartDesign::Pocket", "Pocket001")
pocket2.Profile = sketch4
pocket2.Length = 1
doc.recompute()

fillet = body.newObject("PartDesign::Fillet", "Fillet")
fillet.Base = (pocket2, edges_at(pocket2, [
    (45.5, -192.5, 3.175),
    (18, -192.5, 3.175),
    (18, -186.5, 3.175),
    (-45.5, 192.5, 3.175),
    (-18, 192.5, 3.175),
    (-18, 186.5, 3.175),
    (17.5, 186.5, 3.175),
    (-17.5, -186.5, 3.175),
]))
fillet.Radius = 2

# Sketch on XY plane
sketch5 = body.newObject("Sketcher::SketchObject", "Sketch004")
sketch5.AttachmentSupport = (doc.getObject("XY_Plane"), [""])
sketch5.MapMode = "FlatFace"
sketch5.addGeometry([
    Part.Circle(App.Vector(129.8, 119, 0), App.Vector(0, 0, 1), 2.2),  # 0
    Part.Circle(App.Vector(-57.8, -137.3, 0), App.Vector(0, 0, 1), 1.8),  # 1
    Part.Circle(App.Vector(-178.5, -136.3, 0), App.Vector(0, 0, 1), 1.8),  # 2
    Part.Circle(App.Vector(178.2, 119, 0), App.Vector(0, 0, 1), 2.2),  # 3
    Part.Circle(App.Vector(-178.5, -182.5, 0), App.Vector(0, 0, 1), 1.8),  # 4
    Part.Circle(App.Vector(-57.8, -181.5, 0), App.Vector(0, 0, 1), 1.8),  # 5
    Part.Circle(App.Vector(170, 50, 0), App.Vector(0, 0, 1), 2.1),  # 6
    Part.Circle(App.Vector(120, 50, 0), App.Vector(0, 0, 1), 2.1),  # 7
    Part.Circle(App.Vector(170, -100, 0), App.Vector(0, 0, 1), 2.1),  # 8
    Part.Circle(App.Vector(120, -100, 0), App.Vector(0, 0, 1), 2.1),  # 9
], False)
sketch5.addConstraint([
    Sketcher.Constraint("Equal", 1, 2),
    Sketcher.Constraint("Equal", 0, 3),
    Sketcher.Constraint("Equal", 2, 4),
    Sketcher.Constraint("Equal", 4, 5),
    Sketcher.Constraint("Equal", 6, 7),
    Sketcher.Constraint("Equal", 7, 8),
    Sketcher.Constraint("Equal", 8, 9),
    Sketcher.Constraint("Horizontal", 0, 3, 3, 3),
    Sketcher.Constraint("Horizontal", 6, 3, 7, 3),
    Sketcher.Constraint("Horizontal", 8, 3, 9, 3),
    Sketcher.Constraint("Vertical", 2, 3, 4, 3),
    Sketcher.Constraint("Vertical", 1, 3, 5, 3),
    Sketcher.Constraint("Vertical", 6, 3, 8, 3),
    Sketcher.Constraint("Vertical", 7, 3, 9, 3),
    Sketcher.Constraint("Diameter", 0, Q("4.5 mm")),
    Sketcher.Constraint("Diameter", 1, Q("3.5 mm")),
    Sketcher.Constraint("Diameter", 6, Q("4.2 mm")),
    Sketcher.Constraint("DistanceY", -1, 1, 0, 3, Q("119 mm")),
    Sketcher.Constraint("DistanceX", -1, 1, 6, 3, Q("170 mm")),
    Sketcher.Constraint("DistanceY", -1, 1, 6, 3, Q("50 mm")),
    Sketcher.Constraint("DistanceX", -1, 1, 7, 3, Q("120 mm")),
    Sketcher.Constraint("DistanceY", 8, 3, -1, 1, Q("100 mm")),
    Sketcher.Constraint("DistanceY", 1, 3, 2, 3, Q("1 mm")),
    Sketcher.Constraint("DistanceY", 4, 3, 5, 3, Q("1 mm")),
    Sketcher.Constraint("DistanceX", 2, 3, -1, 1, Q("178.5 mm")),
    Sketcher.Constraint("DistanceX", 0, 3, 3, 3, Q("48.5 mm")),
    Sketcher.Constraint("DistanceY", 4, 3, 2, 3, Q("46.2 mm")),
    Sketcher.Constraint("DistanceX", -1, 1, 0, 3, Q("129.75 mm")),
    Sketcher.Constraint("DistanceX", 1, 3, -1, 1, Q("57.83 mm")),
    Sketcher.Constraint("DistanceY", 1, 3, -1, 1, Q("137.299994 mm")),
])
pocket3 = body.newObject("PartDesign::Pocket", "Pocket002")
pocket3.Profile = sketch5
pocket3.Type = "ThroughAll"
pocket3.Reversed = True

doc.recompute()
